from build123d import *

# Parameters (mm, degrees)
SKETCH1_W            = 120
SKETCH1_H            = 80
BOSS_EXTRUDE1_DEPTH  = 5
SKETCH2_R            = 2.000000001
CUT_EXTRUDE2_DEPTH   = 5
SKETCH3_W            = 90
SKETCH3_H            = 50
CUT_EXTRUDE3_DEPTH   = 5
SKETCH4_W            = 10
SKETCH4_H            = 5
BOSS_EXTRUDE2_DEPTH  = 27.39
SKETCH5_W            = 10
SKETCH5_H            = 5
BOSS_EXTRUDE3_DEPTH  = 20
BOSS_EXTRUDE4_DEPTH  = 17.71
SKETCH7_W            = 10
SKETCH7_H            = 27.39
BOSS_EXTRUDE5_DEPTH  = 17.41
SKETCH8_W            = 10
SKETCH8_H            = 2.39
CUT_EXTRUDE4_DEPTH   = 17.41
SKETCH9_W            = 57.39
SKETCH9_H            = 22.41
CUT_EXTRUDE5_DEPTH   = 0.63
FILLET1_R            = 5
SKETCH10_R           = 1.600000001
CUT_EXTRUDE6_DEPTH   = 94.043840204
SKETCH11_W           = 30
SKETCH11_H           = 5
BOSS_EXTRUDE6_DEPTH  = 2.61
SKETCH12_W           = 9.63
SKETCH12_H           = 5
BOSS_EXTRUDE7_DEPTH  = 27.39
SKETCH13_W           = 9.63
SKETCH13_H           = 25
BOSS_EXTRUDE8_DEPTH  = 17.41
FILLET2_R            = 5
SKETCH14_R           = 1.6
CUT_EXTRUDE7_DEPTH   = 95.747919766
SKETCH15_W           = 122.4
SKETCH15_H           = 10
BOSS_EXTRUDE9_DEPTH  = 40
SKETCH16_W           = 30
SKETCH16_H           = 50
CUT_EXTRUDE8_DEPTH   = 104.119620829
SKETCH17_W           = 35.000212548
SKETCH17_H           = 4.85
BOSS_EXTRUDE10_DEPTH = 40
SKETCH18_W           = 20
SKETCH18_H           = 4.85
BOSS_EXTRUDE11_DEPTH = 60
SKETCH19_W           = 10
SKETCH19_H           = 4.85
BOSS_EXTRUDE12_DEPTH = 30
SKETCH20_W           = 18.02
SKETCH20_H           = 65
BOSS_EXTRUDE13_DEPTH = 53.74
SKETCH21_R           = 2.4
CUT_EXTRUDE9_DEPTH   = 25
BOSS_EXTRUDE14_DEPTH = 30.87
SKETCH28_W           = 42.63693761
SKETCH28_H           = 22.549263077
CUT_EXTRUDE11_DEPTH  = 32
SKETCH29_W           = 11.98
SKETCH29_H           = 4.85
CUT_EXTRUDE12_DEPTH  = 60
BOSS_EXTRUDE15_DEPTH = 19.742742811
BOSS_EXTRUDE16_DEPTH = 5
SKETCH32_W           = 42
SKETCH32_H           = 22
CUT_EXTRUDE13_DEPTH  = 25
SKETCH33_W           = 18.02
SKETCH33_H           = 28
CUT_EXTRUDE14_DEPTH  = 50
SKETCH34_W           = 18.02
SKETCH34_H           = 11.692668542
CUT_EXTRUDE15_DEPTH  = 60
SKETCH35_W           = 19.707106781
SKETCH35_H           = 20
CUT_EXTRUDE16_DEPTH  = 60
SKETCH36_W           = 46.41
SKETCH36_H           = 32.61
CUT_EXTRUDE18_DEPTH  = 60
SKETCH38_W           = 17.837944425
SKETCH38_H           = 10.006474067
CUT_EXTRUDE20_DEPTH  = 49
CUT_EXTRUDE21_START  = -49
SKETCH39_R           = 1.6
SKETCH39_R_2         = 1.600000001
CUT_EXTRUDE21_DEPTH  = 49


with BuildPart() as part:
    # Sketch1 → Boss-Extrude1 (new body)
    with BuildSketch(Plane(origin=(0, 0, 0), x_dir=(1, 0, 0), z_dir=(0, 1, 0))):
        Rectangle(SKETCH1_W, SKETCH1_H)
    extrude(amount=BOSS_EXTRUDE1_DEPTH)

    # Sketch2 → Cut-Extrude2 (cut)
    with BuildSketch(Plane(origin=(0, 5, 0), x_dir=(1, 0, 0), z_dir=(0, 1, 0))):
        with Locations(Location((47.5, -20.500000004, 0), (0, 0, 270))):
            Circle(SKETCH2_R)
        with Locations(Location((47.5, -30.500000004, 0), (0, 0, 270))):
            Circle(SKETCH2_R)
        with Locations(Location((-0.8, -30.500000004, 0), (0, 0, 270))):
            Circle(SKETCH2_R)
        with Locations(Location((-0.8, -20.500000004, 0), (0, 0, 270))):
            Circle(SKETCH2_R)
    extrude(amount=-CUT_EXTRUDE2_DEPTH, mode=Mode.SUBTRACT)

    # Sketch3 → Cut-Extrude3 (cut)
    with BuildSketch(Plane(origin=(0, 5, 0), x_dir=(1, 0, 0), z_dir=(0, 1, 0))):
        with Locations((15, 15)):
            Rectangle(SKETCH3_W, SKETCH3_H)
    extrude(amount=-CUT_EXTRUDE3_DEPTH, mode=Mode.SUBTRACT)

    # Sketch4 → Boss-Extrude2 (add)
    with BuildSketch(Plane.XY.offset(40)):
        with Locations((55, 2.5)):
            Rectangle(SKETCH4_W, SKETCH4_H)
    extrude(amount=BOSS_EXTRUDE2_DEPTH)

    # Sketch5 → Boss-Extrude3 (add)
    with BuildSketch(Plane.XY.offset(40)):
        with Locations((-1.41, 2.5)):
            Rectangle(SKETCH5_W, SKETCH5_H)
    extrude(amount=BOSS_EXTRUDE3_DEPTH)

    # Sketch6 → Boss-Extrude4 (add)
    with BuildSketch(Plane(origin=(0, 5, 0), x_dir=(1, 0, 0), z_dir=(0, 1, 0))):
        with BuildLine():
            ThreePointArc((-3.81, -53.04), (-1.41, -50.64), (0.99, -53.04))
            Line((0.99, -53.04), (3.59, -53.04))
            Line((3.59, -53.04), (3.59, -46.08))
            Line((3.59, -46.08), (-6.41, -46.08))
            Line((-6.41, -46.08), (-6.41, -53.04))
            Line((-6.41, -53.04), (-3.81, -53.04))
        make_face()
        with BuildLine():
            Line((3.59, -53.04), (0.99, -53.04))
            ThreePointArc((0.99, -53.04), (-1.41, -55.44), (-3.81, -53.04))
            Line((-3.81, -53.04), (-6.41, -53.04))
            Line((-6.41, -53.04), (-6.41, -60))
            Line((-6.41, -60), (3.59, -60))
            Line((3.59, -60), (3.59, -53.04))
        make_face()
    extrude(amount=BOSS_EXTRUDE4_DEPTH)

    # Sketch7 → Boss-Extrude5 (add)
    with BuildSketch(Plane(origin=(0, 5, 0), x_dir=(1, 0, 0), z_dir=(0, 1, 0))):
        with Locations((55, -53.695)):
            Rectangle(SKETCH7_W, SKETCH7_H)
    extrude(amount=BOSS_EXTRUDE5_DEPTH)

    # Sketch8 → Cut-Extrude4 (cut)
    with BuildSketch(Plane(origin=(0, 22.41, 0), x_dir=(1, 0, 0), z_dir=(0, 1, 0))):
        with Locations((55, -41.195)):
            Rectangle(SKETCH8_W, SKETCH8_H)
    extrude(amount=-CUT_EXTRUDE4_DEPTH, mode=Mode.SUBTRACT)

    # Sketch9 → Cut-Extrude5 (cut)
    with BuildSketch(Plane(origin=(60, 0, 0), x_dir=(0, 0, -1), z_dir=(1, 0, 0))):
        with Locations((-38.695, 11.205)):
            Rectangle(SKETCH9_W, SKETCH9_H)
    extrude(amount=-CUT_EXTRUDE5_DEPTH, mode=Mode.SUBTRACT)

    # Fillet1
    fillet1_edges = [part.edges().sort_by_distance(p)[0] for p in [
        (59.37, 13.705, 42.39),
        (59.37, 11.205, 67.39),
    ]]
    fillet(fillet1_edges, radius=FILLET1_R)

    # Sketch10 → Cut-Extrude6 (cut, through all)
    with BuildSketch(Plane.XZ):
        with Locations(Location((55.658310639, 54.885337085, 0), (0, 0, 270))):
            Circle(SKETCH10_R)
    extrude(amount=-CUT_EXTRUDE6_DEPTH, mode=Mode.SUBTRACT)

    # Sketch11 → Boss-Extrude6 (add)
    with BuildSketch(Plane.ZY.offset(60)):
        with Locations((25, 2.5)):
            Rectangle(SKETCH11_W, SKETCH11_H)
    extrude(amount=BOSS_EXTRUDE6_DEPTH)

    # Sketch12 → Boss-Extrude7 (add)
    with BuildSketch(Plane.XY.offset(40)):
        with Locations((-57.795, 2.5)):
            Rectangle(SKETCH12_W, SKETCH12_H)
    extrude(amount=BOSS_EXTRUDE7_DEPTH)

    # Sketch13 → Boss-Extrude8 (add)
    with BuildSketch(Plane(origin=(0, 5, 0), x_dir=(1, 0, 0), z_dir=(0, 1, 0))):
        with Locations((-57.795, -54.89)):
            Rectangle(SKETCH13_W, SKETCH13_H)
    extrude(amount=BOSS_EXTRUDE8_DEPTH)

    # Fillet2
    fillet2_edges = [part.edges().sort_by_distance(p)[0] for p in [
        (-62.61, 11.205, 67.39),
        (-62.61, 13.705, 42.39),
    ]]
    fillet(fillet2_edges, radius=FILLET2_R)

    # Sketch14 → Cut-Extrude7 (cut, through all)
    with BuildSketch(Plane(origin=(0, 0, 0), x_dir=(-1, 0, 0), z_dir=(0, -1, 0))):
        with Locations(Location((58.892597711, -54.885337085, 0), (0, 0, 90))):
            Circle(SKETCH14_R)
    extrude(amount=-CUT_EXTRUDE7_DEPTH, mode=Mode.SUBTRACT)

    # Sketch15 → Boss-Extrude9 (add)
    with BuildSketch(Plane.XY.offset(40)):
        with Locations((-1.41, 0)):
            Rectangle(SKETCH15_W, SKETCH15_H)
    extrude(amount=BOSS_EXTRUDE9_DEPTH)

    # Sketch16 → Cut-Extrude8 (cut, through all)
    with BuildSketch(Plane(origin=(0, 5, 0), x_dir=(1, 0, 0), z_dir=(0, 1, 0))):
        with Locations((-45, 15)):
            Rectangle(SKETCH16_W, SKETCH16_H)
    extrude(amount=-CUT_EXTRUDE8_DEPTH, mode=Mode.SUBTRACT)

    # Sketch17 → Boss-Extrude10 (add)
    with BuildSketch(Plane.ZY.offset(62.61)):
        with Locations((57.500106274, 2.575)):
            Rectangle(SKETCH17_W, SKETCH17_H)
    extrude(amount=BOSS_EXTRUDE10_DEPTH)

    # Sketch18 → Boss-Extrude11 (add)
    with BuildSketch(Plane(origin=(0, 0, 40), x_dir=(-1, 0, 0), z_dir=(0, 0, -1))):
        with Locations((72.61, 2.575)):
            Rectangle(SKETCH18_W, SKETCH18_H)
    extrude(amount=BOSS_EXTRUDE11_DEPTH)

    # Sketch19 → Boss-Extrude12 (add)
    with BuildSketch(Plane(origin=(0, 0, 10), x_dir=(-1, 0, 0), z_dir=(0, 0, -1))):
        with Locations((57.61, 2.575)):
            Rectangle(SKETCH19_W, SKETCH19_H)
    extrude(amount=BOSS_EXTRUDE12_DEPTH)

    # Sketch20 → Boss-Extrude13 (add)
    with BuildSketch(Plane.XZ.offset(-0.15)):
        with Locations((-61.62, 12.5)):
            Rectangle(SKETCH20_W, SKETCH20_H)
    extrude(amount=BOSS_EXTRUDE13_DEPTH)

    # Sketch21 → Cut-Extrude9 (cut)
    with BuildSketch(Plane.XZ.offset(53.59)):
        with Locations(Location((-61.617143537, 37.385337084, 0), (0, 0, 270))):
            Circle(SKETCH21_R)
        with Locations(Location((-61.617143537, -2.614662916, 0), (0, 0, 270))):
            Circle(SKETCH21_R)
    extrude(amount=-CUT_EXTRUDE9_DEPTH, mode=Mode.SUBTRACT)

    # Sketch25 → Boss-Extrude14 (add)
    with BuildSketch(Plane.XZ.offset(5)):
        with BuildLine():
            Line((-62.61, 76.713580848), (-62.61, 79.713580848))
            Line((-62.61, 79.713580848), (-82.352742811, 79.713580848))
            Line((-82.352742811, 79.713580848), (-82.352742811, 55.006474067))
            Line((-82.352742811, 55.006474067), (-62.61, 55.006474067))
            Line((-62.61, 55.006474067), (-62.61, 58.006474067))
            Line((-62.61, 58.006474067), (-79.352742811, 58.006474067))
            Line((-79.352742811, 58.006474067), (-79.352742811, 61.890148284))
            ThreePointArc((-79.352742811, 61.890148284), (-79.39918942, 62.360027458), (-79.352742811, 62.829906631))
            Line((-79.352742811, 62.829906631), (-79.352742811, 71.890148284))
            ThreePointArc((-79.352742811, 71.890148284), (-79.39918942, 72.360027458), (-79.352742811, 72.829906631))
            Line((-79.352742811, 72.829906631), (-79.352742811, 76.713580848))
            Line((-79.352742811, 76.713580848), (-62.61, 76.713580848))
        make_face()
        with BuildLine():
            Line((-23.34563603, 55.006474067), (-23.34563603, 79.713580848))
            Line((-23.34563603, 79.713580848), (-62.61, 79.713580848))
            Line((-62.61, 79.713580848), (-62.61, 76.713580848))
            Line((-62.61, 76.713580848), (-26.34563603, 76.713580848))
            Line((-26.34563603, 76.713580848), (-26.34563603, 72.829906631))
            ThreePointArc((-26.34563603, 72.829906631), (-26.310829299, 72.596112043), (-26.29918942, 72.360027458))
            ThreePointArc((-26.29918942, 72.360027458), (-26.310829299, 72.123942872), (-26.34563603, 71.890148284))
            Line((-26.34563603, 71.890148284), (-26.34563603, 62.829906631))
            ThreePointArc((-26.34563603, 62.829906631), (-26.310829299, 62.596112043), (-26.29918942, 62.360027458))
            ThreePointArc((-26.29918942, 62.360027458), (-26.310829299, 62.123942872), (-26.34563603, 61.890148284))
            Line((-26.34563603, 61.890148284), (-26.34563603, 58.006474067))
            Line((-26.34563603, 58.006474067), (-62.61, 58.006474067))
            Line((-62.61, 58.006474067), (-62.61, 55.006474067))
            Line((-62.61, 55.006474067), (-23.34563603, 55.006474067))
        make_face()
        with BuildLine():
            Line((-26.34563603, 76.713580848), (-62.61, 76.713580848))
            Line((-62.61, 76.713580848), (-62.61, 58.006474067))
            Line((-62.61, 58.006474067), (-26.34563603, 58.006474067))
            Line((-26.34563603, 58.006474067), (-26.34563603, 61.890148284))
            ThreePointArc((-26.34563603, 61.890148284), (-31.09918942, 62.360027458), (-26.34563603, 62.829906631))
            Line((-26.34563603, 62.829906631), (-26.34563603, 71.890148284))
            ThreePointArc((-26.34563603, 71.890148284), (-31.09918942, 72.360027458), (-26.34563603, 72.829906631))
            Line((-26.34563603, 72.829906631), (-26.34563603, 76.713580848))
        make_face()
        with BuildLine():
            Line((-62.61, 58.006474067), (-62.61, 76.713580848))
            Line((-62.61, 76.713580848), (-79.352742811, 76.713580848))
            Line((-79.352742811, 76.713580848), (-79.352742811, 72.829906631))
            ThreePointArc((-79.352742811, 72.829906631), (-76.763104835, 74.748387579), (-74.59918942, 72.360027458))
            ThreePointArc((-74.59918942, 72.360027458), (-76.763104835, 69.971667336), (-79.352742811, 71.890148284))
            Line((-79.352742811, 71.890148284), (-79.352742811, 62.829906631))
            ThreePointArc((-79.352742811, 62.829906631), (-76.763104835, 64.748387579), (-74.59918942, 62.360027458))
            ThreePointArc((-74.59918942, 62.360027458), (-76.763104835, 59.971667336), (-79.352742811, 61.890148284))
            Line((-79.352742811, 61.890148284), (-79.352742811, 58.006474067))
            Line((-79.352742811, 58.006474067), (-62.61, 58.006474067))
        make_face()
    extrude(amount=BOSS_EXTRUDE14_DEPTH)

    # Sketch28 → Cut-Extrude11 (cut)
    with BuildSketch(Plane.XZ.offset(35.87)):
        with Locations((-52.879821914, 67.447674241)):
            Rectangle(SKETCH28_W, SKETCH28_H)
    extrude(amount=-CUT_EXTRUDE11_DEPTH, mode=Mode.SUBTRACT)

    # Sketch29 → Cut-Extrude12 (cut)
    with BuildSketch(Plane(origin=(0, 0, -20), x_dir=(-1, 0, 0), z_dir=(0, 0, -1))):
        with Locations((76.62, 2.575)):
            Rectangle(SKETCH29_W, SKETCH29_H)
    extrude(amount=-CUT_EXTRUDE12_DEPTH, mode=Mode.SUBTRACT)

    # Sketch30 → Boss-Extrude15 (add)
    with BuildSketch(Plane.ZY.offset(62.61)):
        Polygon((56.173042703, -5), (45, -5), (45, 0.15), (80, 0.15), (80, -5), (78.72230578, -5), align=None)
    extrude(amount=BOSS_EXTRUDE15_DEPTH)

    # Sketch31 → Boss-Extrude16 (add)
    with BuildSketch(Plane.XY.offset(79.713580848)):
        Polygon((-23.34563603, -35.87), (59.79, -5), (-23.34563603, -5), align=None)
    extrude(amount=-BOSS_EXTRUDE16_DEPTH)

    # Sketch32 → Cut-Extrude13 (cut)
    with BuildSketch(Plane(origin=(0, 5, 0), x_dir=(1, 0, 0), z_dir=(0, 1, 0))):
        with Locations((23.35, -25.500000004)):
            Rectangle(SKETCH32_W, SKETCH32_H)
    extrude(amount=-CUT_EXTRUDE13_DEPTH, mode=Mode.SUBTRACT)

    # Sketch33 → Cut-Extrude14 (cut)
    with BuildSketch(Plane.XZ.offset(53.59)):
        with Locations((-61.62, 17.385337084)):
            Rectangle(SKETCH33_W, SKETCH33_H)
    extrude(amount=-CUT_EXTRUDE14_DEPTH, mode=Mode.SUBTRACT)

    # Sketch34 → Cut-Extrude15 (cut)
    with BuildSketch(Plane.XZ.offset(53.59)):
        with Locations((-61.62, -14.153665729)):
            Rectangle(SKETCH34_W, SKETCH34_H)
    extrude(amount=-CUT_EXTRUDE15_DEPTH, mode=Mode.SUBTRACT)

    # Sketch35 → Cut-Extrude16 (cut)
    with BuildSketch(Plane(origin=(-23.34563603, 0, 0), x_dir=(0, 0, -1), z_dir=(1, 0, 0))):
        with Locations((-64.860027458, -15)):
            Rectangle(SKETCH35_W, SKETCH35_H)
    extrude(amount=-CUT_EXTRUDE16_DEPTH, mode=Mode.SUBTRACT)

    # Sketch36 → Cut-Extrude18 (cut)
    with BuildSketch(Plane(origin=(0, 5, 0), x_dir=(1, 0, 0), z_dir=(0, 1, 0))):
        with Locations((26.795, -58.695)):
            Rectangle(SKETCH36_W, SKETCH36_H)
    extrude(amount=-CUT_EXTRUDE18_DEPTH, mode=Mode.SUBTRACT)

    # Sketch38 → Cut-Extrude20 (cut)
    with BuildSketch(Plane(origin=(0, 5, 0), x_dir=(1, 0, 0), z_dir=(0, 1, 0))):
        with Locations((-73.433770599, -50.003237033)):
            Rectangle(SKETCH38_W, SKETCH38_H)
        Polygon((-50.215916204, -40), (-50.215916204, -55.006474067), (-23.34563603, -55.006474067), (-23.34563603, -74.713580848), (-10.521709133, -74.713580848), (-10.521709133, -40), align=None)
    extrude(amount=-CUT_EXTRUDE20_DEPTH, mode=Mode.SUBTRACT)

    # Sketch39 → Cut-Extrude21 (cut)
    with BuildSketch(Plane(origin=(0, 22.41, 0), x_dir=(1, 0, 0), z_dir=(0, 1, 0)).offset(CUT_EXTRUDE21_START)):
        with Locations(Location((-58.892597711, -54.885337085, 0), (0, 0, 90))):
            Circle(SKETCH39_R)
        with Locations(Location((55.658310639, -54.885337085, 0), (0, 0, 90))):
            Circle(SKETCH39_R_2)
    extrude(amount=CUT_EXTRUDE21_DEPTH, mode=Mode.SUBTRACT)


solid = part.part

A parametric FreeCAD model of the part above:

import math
import FreeCAD as App
import Part
import Sketcher

V = App.Vector


def edges_at(feature, points):
    """Names of the edges that pass closest to the given points."""
    edges = feature.Shape.Edges
    near = lambda p: min(range(len(edges)), key=lambda i: edges[i].distToShape(Part.Vertex(*p))[0])
    return sorted({f"Edge{near(p) + 1}" for p in points})


def add_polygon(sketch, points):
    """Adds a closed chain of lines whose ends are joined by coincident constraints."""
    first, n = sketch.GeometryCount, len(points)
    for a, b in zip(points, points[1:] + points[:1]):
        sketch.addGeometry(Part.LineSegment(App.Vector(*a, 0), App.Vector(*b, 0)), False)
    for i in range(n):
        sketch.addConstraint(Sketcher.Constraint("Coincident", first + i, 2, first + (i + 1) % n, 1))

doc = App.newDocument("Part")
body = doc.addObject("PartDesign::Body", "Body")

sketch1 = doc.addObject("Sketcher::SketchObject", "Sketch")
body.addObject(sketch1)
sketch1.AttachmentSupport = (doc.XZ_Plane, [""])
sketch1.MapMode = "FlatFace"
add_polygon(sketch1, [(-60, -40), (-60, 40), (60, 40), (60, -40)])
sketch1.addConstraint([
    Sketcher.Constraint("Vertical", 0),
    Sketcher.Constraint("Horizontal", 1),
    Sketcher.Constraint("Vertical", 2),
    Sketcher.Constraint("Horizontal", 3),
    Sketcher.Constraint("Symmetric", 0, 2, 2, 2, -1, 1),
    Sketcher.Constraint("DistanceX", 1, 1, 1, 2, 120.0),
    Sketcher.Constraint("DistanceY", 0, 1, 0, 2, 80.0),
])
pad1 = doc.addObject("PartDesign::Pad", "Pad")
body.addObject(pad1)
pad1.Profile = sketch1
pad1.Length = 5
pad1.Reversed = True

sketch2 = doc.addObject("Sketcher::SketchObject", "Sketch001")
body.addObject(sketch2)
sketch2.AttachmentSupport = (doc.XZ_Plane, [""])
sketch2.MapMode = "FlatFace"
sketch2.AttachmentOffset = App.Placement(V(0, 0, -5), App.Rotation())
sketch2.addGeometry([
    Part.Circle(V(47.5, 20.5, 0), V(0, 0, 1), 2),
    Part.Circle(V(47.5, 30.5, 0), V(0, 0, 1), 2),
    Part.Circle(V(-0.8, 30.5, 0), V(0, 0, 1), 2),
    Part.Circle(V(-0.8, 20.5, 0), V(0, 0, 1), 2),
], False)
sketch2.addConstraint([
    Sketcher.Constraint("Equal", 0, 1),
    Sketcher.Constraint("Equal", 1, 2),
    Sketcher.Constraint("Equal", 2, 3),
    Sketcher.Constraint("Horizontal", 1, 3, 2, 3),
    Sketcher.Constraint("Horizontal", 0, 3, 3, 3),
    Sketcher.Constraint("Vertical", 0, 3, 1, 3),
    Sketcher.Constraint("Vertical", 2, 3, 3, 3),
    Sketcher.Constraint("Diameter", 0, 4.0),
    Sketcher.Constraint("DistanceY", 0, 3, 1, 3, 10.0),
    Sketcher.Constraint("DistanceX", -1, 1, 0, 3, 47.5),
    Sketcher.Constraint("DistanceY", -1, 1, 0, 3, 20.5),
    Sketcher.Constraint("DistanceX", 2, 3, -1, 1, 0.8),
])
pocket1 = doc.addObject("PartDesign::Pocket", "Pocket")
body.addObject(pocket1)
pocket1.Profile = sketch2
pocket1.Length = 5
pocket1.Reversed = True

sketch3 = doc.addObject("Sketcher::SketchObject", "Sketch002")
body.addObject(sketch3)
sketch3.AttachmentSupport = (doc.XZ_Plane, [""])
sketch3.MapMode = "FlatFace"
sketch3.AttachmentOffset = App.Placement(V(0, 0, -5), App.Rotation())
add_polygon(sketch3, [(-30, -40), (-30, 10), (60, 10), (60, -40)])
sketch3.addConstraint([
    Sketcher.Constraint("Vertical", 0),
    Sketcher.Constraint("Horizontal", 1),
    Sketcher.Constraint("Vertical", 2),
    Sketcher.Constraint("Horizontal", 3),
    Sketcher.Constraint("DistanceX", 1, 1, 1, 2, 90.0),
    Sketcher.Constraint("DistanceY", 0, 1, 0, 2, 50.0),
    Sketcher.Constraint("DistanceX", 0, 2, -1, 1, 30.0),
    Sketcher.Constraint("DistanceY", -1, 1, 0, 2, 10.0),
])
pocket2 = doc.addObject("PartDesign::Pocket", "Pocket001")
body.addObject(pocket2)
pocket2.Profile = sketch3
pocket2.Length = 5
pocket2.Reversed = True

sketch4 = doc.addObject("Sketcher::SketchObject", "Sketch003")
body.addObject(sketch4)
sketch4.AttachmentSupport = (doc.XY_Plane, [""])
sketch4.MapMode = "FlatFace"
sketch4.AttachmentOffset = App.Placement(V(0, 0, 40), App.Rotation())
add_polygon(sketch4, [(50, 5), (50, 0), (60, 0), (60, 5)])
sketch4.addConstraint([
    Sketcher.Constraint("Vertical", 0),
    Sketcher.Constraint("Horizontal", 1),
    Sketcher.Constraint("Vertical", 2),
    Sketcher.Constraint("Horizontal", 3),
    Sketcher.Constraint("PointOnObject", 0, 2, -1),
    Sketcher.Constraint("DistanceX", 1, 1, 1, 2, 10.0),
    Sketcher.Constraint("DistanceY", 0, 2, 0, 1, 5.0),
    Sketcher.Constraint("DistanceX", -1, 1, 0, 2, 50.0),
])
pad2 = doc.addObject("PartDesign::Pad", "Pad001")
body.addObject(pad2)
pad2.Profile = sketch4
pad2.Length = 27.39

sketch5 = doc.addObject("Sketcher::SketchObject", "Sketch004")
body.addObject(sketch5)
sketch5.AttachmentSupport = (doc.XY_Plane, [""])
sketch5.MapMode = "FlatFace"
sketch5.AttachmentOffset = App.Placement(V(0, 0, 40), App.Rotation())
add_polygon(sketch5, [(-6.41, 5), (-6.41, 0), (3.59, 0), (3.59, 5)])
sketch5.addConstraint([
    Sketcher.Constraint("Vertical", 0),
    Sketcher.Constraint("Horizontal", 1),
    Sketcher.Constraint("Vertical", 2),
    Sketcher.Constraint("Horizontal", 3),
    Sketcher.Constraint("PointOnObject", 0, 2, -1),
    Sketcher.Constraint("DistanceX", 1, 1, 1, 2, 10.0),
    Sketcher.Constraint("DistanceY", 0, 2, 0, 1, 5.0),
    Sketcher.Constraint("DistanceX", 0, 2, -1, 1, 6.41),
])
pad3 = doc.addObject("PartDesign::Pad", "Pad002")
body.addObject(pad3)
pad3.Profile = sketch5
pad3.Length = 20

sketch6 = doc.addObject("Sketcher::SketchObject", "Sketch005")
body.addObject(sketch6)
sketch6.AttachmentSupport = (doc.XZ_Plane, [""])
sketch6.MapMode = "FlatFace"
sketch6.AttachmentOffset = App.Placement(V(0, 0, -5), App.Rotation())
add_polygon(sketch6, [(3.59, 46.08), (-6.41, 46.08), (-6.41, 60), (3.59, 60)])
sketch6.addGeometry(Part.Circle(V(-1.41, 53.04, 0), V(0, 0, 1), 2.4), False)
sketch6.addConstraint([
    Sketcher.Constraint("Horizontal", 0),
    Sketcher.Constraint("Vertical", 1),
    Sketcher.Constraint("Horizontal", 2),
    Sketcher.Constraint("Vertical", 3),
    Sketcher.Constraint("Diameter", 4, 4.8),
    Sketcher.Constraint("DistanceX", 0, 2, 0, 1, 10.0),
    Sketcher.Constraint("DistanceY", -1, 1, 1, 2, 60.0),
    Sketcher.Constraint("DistanceX", 0, 2, 4, 3, 5.0),
    Sketcher.Constraint("DistanceY", 1, 1, 1, 2, 13.92),
    Sketcher.Constraint("DistanceX", 4, 3, -1, 1, 1.41),
    Sketcher.Constraint("DistanceY", -1, 1, 4, 3, 53.04),
])
pad4 = doc.addObject("PartDesign::Pad", "Pad003")
body.addObject(pad4)
pad4.Profile = sketch6
pad4.Length = 17.71
pad4.Reversed = True

sketch7 = doc.addObject("Sketcher::SketchObject", "Sketch006")
body.addObject(sketch7)
sketch7.AttachmentSupport = (doc.XZ_Plane, [""])
sketch7.MapMode = "FlatFace"
sketch7.AttachmentOffset = App.Placement(V(0, 0, -5), App.Rotation())
add_polygon(sketch7, [(50, 40), (50, 67.39), (60, 67.39), (60, 40)])
sketch7.addConstraint([
    Sketcher.Constraint("Vertical", 0),
    Sketcher.Constraint("Horizontal", 1),
    Sketcher.Constraint("Vertical", 2),
    Sketcher.Constraint("Horizontal", 3),
    Sketcher.Constraint("DistanceX", 1, 1, 1, 2, 10.0),
    Sketcher.Constraint("DistanceX", -1, 1, 0, 2, 50.0),
    Sketcher.Constraint("DistanceY", -1, 1, 2, 2, 40.0),
    Sketcher.Constraint("DistanceY", 0, 1, 0, 2, 27.39),
])
pad5 = doc.addObject("PartDesign::Pad", "Pad004")
body.addObject(pad5)
pad5.Profile = sketch7
pad5.Length = 17.41
pad5.Reversed = True

sketch8 = doc.addObject("Sketcher::SketchObject", "Sketch007")
body.addObject(sketch8)
sketch8.AttachmentSupport = (doc.XZ_Plane, [""])
sketch8.MapMode = "FlatFace"
sketch8.AttachmentOffset = App.Placement(V(0, 0, -22.41), App.Rotation())
add_polygon(sketch8, [(50, 40), (50, 42.39), (60, 42.39), (60, 40)])
sketch8.addConstraint([
    Sketcher.Constraint("Vertical", 0),
    Sketcher.Constraint("Horizontal", 1),
    Sketcher.Constraint("Vertical", 2),
    Sketcher.Constraint("Horizontal", 3),
    Sketcher.Constraint("DistanceX", 1, 1, 1, 2, 10.0),
    Sketcher.Constraint("DistanceX", -1, 1, 0, 2, 50.0),
    Sketcher.Constraint("DistanceY", -1, 1, 2, 2, 40.0),
    Sketcher.Constraint("DistanceY", 0, 1, 0, 2, 2.39),
])
pocket3 = doc.addObject("PartDesign::Pocket", "Pocket002")
body.addObject(pocket3)
pocket3.Profile = sketch8
pocket3.Length = 17.41
pocket3.Reversed = True

sketch9 = doc.addObject("Sketcher::SketchObject", "Sketch008")
body.addObject(sketch9)
sketch9.AttachmentSupport = (doc.YZ_Plane, [""])
sketch9.MapMode = "FlatFace"
sketch9.AttachmentOffset = App.Placement(V(0, 0, 60), App.Rotation())
add_polygon(sketch9, [(22.41, 67.39), (0, 67.39), (0, 10), (22.41, 10)])
sketch9.addConstraint([
    Sketcher.Constraint("Horizontal", 0),
    Sketcher.Constraint("Vertical", 1),
    Sketcher.Constraint("Horizontal", 2),
    Sketcher.Constraint("Vertical", 3),
    Sketcher.Constraint("PointOnObject", 0, 2, -2),
    Sketcher.Constraint("DistanceY", -1, 1, 1, 2, 10.0),
    Sketcher.Constraint("DistanceX", 0, 2, 0, 1, 22.41),
    Sketcher.Constraint("DistanceY", 1, 2, 1, 1, 57.39),
])
pocket4 = doc.addObject("PartDesign::Pocket", "Pocket003")
body.addObject(pocket4)
pocket4.Profile = sketch9
pocket4.Length = 0.63
doc.recompute()

fillet = doc.addObject("PartDesign::Fillet", "Fillet")
body.addObject(fillet)
fillet.Base = (pocket4, edges_at(pocket4, [(59.37, 13.705, 42.39), (59.37, 11.205, 67.39)]))
fillet.Radius = 5

sketch10 = doc.addObject("Sketcher::SketchObject", "Sketch009")
body.addObject(sketch10)
sketch10.AttachmentSupport = (doc.XZ_Plane, [""])
sketch10.MapMode = "FlatFace"
sketch10.addGeometry(Part.Circle(V(55.658311, 54.885337, 0), V(0, 0, 1), 1.6), False)
sketch10.addConstraint([
    Sketcher.Constraint("Diameter", 0, 3.2),
    Sketcher.Constraint("DistanceX", -1, 1, 0, 3, 55.658311),
    Sketcher.Constraint("DistanceY", -1, 1, 0, 3, 54.885337),
])
pocket5 = doc.addObject("PartDesign::Pocket", "Pocket004")
body.addObject(pocket5)
pocket5.Profile = sketch10
pocket5.Type = "ThroughAll"

sketch11 = doc.addObject("Sketcher::SketchObject", "Sketch010")
body.addObject(sketch11)
sketch11.AttachmentSupport = (doc.YZ_Plane, [""])
sketch11.MapMode = "FlatFace"
sketch11.AttachmentOffset = App.Placement(V(0, 0, -60), App.Rotation())
add_polygon(sketch11, [(5, 10), (0, 10), (0, 40), (5, 40)])
sketch11.addConstraint([
    Sketcher.Constraint("Horizontal", 0),
    Sketcher.Constraint("Vertical", 1),
    Sketcher.Constraint("Horizontal", 2),
    Sketcher.Constraint("Vertical", 3),
    Sketcher.Constraint("PointOnObject", 0, 2, -2),
    Sketcher.Constraint("DistanceX", 0, 2, 0, 1, 5.0),
    Sketcher.Constraint("DistanceY", 1, 1, 1, 2, 30.0),
    Sketcher.Constraint("DistanceY", -1, 1, 0, 2, 10.0),
])
pad6 = doc.addObject("PartDesign::Pad", "Pad005")
body.addObject(pad6)
pad6.Profile = sketch11
pad6.Length = 2.61
pad6.Reversed = True

sketch12 = doc.addObject("Sketcher::SketchObject", "Sketch011")
body.addObject(sketch12)
sketch12.AttachmentSupport = (doc.XY_Plane, [""])
sketch12.MapMode = "FlatFace"
sketch12.AttachmentOffset = App.Placement(V(0, 0, 40), App.Rotation())
add_polygon(sketch12, [(-62.61, 5), (-62.61, 0), (-52.98, 0), (-52.98, 5)])
sketch12.addConstraint([
    Sketcher.Constraint("Vertical", 0),
    Sketcher.Constraint("Horizontal", 1),
    Sketcher.Constraint("Vertical", 2),
    Sketcher.Constraint("Horizontal", 3),
    Sketcher.Constraint("PointOnObject", 0, 2, -1),
    Sketcher.Constraint("DistanceY", 0, 2, 0, 1, 5.0),
    Sketcher.Constraint("DistanceX", 1, 1, 1, 2, 9.63),
    Sketcher.Constraint("DistanceX", 0, 2, -1, 1, 62.61),
])
pad7 = doc.addObject("PartDesign::Pad", "Pad006")
body.addObject(pad7)
pad7.Profile = sketch12
pad7.Length = 27.39

sketch13 = doc.addObject("Sketcher::SketchObject", "Sketch012")
body.addObject(sketch13)
sketch13.AttachmentSupport = (doc.XZ_Plane, [""])
sketch13.MapMode = "FlatFace"
sketch13.AttachmentOffset = App.Placement(V(0, 0, -5), App.Rotation())
add_polygon(sketch13, [(-62.61, 42.39), (-62.61, 67.39), (-52.98, 67.39), (-52.98, 42.39)])
sketch13.addConstraint([
    Sketcher.Constraint("Vertical", 0),
    Sketcher.Constraint("Horizontal", 1),
    Sketcher.Constraint("Vertical", 2),
    Sketcher.Constraint("Horizontal", 3),
    Sketcher.Constraint("DistanceY", 0, 1, 0, 2, 25.0),
    Sketcher.Constraint("DistanceX", 1, 1, 1, 2, 9.63),
    Sketcher.Constraint("DistanceX", 0, 2, -1, 1, 62.61),
    Sketcher.Constraint("DistanceY", -1, 1, 0, 2, 67.39),
])
pad8 = doc.addObject("PartDesign::Pad", "Pad007")
body.addObject(pad8)
pad8.Profile = sketch13
pad8.Length = 17.41
pad8.Reversed = True
doc.recompute()

fillet2 = doc.addObject("PartDesign::Fillet", "Fillet001")
body.addObject(fillet2)
fillet2.Base = (pad8, edges_at(pad8, [(-62.61, 11.205, 67.39), (-62.61, 13.705, 42.39)]))
fillet2.Radius = 5

sketch14 = doc.addObject("Sketcher::SketchObject", "Sketch013")
body.addObject(sketch14)
sketch14.AttachmentSupport = (doc.XZ_Plane, [""])
sketch14.MapMode = "FlatFace"
sketch14.addGeometry(Part.Circle(V(-58.892598, 54.885337, 0), V(0, 0, 1), 1.6), False)
sketch14.addConstraint([
    Sketcher.Constraint("Diameter", 0, 3.2),
    Sketcher.Constraint("DistanceX", 0, 3, -1, 1, 58.892598),
    Sketcher.Constraint("DistanceY", -1, 1, 0, 3, 54.885337),
])
pocket6 = doc.addObject("PartDesign::Pocket", "Pocket005")
body.addObject(pocket6)
pocket6.Profile = sketch14
pocket6.Type = "ThroughAll"

sketch15 = doc.addObject("Sketcher::SketchObject", "Sketch014")
body.addObject(sketch15)
sketch15.AttachmentSupport = (doc.XY_Plane, [""])
sketch15.MapMode = "FlatFace"
sketch15.AttachmentOffset = App.Placement(V(0, 0, 40), App.Rotation())
add_polygon(sketch15, [(-62.61, 5), (-62.61, -5), (59.79, -5), (59.79, 5)])
sketch15.addConstraint([
    Sketcher.Constraint("Vertical", 0),
    Sketcher.Constraint("Horizontal", 1),
    Sketcher.Constraint("Vertical", 2),
    Sketcher.Constraint("Horizontal", 3),
    Sketcher.Constraint("DistanceY", 0, 2, 0, 1, 10.0),
    Sketcher.Constraint("DistanceX", 1, 1, 1, 2, 122.4),
    Sketcher.Constraint("DistanceY", 0, 2, -1, 1, 5.0),
    Sketcher.Constraint("DistanceX", 0, 2, -1, 1, 62.61),
])
pad9 = doc.addObject("PartDesign::Pad", "Pad008")
body.addObject(pad9)
pad9.Profile = sketch15
pad9.Length = 40

sketch16 = doc.addObject("Sketcher::SketchObject", "Sketch015")
body.addObject(sketch16)
sketch16.AttachmentSupport = (doc.XZ_Plane, [""])
sketch16.MapMode = "FlatFace"
sketch16.AttachmentOffset = App.Placement(V(0, 0, -5), App.Rotation())
add_polygon(sketch16, [(-60, -40), (-60, 10), (-30, 10), (-30, -40)])
sketch16.addConstraint([
    Sketcher.Constraint("Vertical", 0),
    Sketcher.Constraint("Horizontal", 1),
    Sketcher.Constraint("Vertical", 2),
    Sketcher.Constraint("Horizontal", 3),
    Sketcher.Constraint("DistanceX", 1, 1, 1, 2, 30.0),
    Sketcher.Constraint("DistanceY", 0, 1, 0, 2, 50.0),
    Sketcher.Constraint("DistanceX", 0, 2, -1, 1, 60.0),
    Sketcher.Constraint("DistanceY", -1, 1, 0, 2, 10.0),
])
pocket7 = doc.addObject("PartDesign::Pocket", "Pocket006")
body.addObject(pocket7)
pocket7.Profile = sketch16
pocket7.Type = "ThroughAll"
pocket7.Reversed = True

sketch17 = doc.addObject("Sketcher::SketchObject", "Sketch016")
body.addObject(sketch17)
sketch17.AttachmentSupport = (doc.YZ_Plane, [""])
sketch17.MapMode = "FlatFace"
sketch17.AttachmentOffset = App.Placement(V(0, 0, -62.61), App.Rotation())
add_polygon(sketch17, [(5, 40), (0.15, 40), (0.15, 75.000213), (5, 75.000213)])
sketch17.addConstraint([
    Sketcher.Constraint("Horizontal", 0),
    Sketcher.Constraint("Vertical", 1),
    Sketcher.Constraint("Horizontal", 2),
    Sketcher.Constraint("Vertical", 3),
    Sketcher.Constraint("DistanceY", -1, 1, 0, 2, 40.0),
    Sketcher.Constraint("DistanceX", -1, 1, 2, 2, 5.0),
    Sketcher.Constraint("DistanceX", 0, 2, 0, 1, 4.85),
    Sketcher.Constraint("DistanceY", 1, 1, 1, 2, 35.000213),
])
pad10 = doc.addObject("PartDesign::Pad", "Pad009")
body.addObject(pad10)
pad10.Profile = sketch17
pad10.Length = 40
pad10.Reversed = True

sketch18 = doc.addObject("Sketcher::SketchObject", "Sketch017")
body.addObject(sketch18)
sketch18.AttachmentSupport = (doc.XY_Plane, [""])
sketch18.MapMode = "FlatFace"
sketch18.AttachmentOffset = App.Placement(V(0, 0, 40), App.Rotation())
add_polygon(sketch18, [(-62.61, 5), (-62.61, 0.15), (-82.61, 0.15), (-82.61, 5)])
sketch18.addConstraint([
    Sketcher.Constraint("Vertical", 0),
    Sketcher.Constraint("Horizontal", 1),
    Sketcher.Constraint("Vertical", 2),
    Sketcher.Constraint("Horizontal", 3),
    Sketcher.Constraint("DistanceX", 1, 2, 1, 1, 20.0),
    Sketcher.Constraint("DistanceY", -1, 1, 2, 2, 5.0),
    Sketcher.Constraint("DistanceY", 0, 2, 0, 1, 4.85),
    Sketcher.Constraint("DistanceX", 0, 2, -1, 1, 62.61),
])
pad11 = doc.addObject("PartDesign::Pad", "Pad010")
body.addObject(pad11)
pad11.Profile = sketch18
pad11.Length = 60
pad11.Reversed = True

sketch19 = doc.addObject("Sketcher::SketchObject", "Sketch018")
body.addObject(sketch19)
sketch19.AttachmentSupport = (doc.XY_Plane, [""])
sketch19.MapMode = "FlatFace"
sketch19.AttachmentOffset = App.Placement(V(0, 0, 10), App.Rotation())
add_polygon(sketch19, [(-52.61, 5), (-52.61, 0.15), (-62.61, 0.15), (-62.61, 5)])
sketch19.addConstraint([
    Sketcher.Constraint("Vertical", 0),
    Sketcher.Constraint("Horizontal", 1),
    Sketcher.Constraint("Vertical", 2),
    Sketcher.Constraint("Horizontal", 3),
    Sketcher.Constraint("DistanceX", 1, 2, 1, 1, 10.0),
    Sketcher.Constraint("DistanceY", -1, 1, 2, 2, 5.0),
    Sketcher.Constraint("DistanceY", 0, 2, 0, 1, 4.85),
    Sketcher.Constraint("DistanceX", 0, 2, -1, 1, 52.61),
])
pad12 = doc.addObject("PartDesign::Pad", "Pad011")
body.addObject(pad12)
pad12.Profile = sketch19
pad12.Length = 30
pad12.Reversed = True

sketch20 = doc.addObject("Sketcher::SketchObject", "Sketch019")
body.addObject(sketch20)
sketch20.AttachmentSupport = (doc.XZ_Plane, [""])
sketch20.MapMode = "FlatFace"
sketch20.AttachmentOffset = App.Placement(V(0, 0, -0.15), App.Rotation())
add_polygon(sketch20, [(-70.63, 45), (-70.63, -20), (-52.61, -20), (-52.61, 45)])
sketch20.addConstraint([
    Sketcher.Constraint("Vertical", 0),
    Sketcher.Constraint("Horizontal", 1),
    Sketcher.Constraint("Vertical", 2),
    Sketcher.Constraint("Horizontal", 3),
    Sketcher.Constraint("DistanceY", 0, 2, 0, 1, 65.0),
    Sketcher.Constraint("DistanceY", 0, 2, -1, 1, 20.0),
    Sketcher.Constraint("DistanceX", 1, 1, 1, 2, 18.02),
    Sketcher.Constraint("DistanceX", 0, 2, -1, 1, 70.63),
])
pad13 = doc.addObject("PartDesign::Pad", "Pad012")
body.addObject(pad13)
pad13.Profile = sketch20
pad13.Length = 53.74

sketch21 = doc.addObject("Sketcher::SketchObject", "Sketch020")
body.addObject(sketch21)
sketch21.AttachmentSupport = (doc.XZ_Plane, [""])
sketch21.MapMode = "FlatFace"
sketch21.AttachmentOffset = App.Placement(V(0, 0, 53.59), App.Rotation())
sketch21.addGeometry([
    Part.Circle(V(-61.617144, 37.385337, 0), V(0, 0, 1), 2.4),
    Part.Circle(V(-61.617144, -2.614663, 0), V(0, 0, 1), 2.4),
], False)
sketch21.addConstraint([
    Sketcher.Constraint("Equal", 0, 1),
    Sketcher.Constraint("Vertical", 0, 3, 1, 3),
    Sketcher.Constraint("Diameter", 0, 4.8),
    Sketcher.Constraint("DistanceY", 1, 3, 0, 3, 40.0),
    Sketcher.Constraint("DistanceX", 0, 3, -1, 1, 61.617144),
    Sketcher.Constraint("DistanceY", -1, 1, 0, 3, 37.385337),
])
pocket8 = doc.addObject("PartDesign::Pocket", "Pocket007")
body.addObject(pocket8)
pocket8.Profile = sketch21
pocket8.Length = 25

sketch22 = doc.addObject("Sketcher::SketchObject", "Sketch021")
body.addObject(sketch22)
sketch22.AttachmentSupport = (doc.XZ_Plane, [""])
sketch22.MapMode = "FlatFace"
sketch22.AttachmentOffset = App.Placement(V(0, 0, 5), App.Rotation())
add_polygon(sketch22, [(-82.352743, 79.713581), (-82.352743, 55.006474), (-23.345636, 55.006474), (-23.345636, 79.713581)])
sketch22.addGeometry(Part.ArcOfCircle(Part.Circle(V(-76.999189, 62.360027, 0), V(0, 0, 1), 2.4), math.radians(168.709533), math.radians(191.290467)), False)
sketch22.addGeometry(Part.ArcOfCircle(Part.Circle(V(-76.999189, 62.360027, 0), V(0, 0, 1), 2.4), math.radians(0), math.radians(168.709533)), False)
sketch22.addGeometry(Part.ArcOfCircle(Part.Circle(V(-76.999189, 62.360027, 0), V(0, 0, 1), 2.4), math.radians(-168.709533), math.radians(0)), False)
sketch22.addGeometry(Part.ArcOfCircle(Part.Circle(V(-76.999189, 72.360027, 0), V(0, 0, 1), 2.4), math.radians(168.709533), math.radians(191.290467)), False)
sketch22.addGeometry(Part.ArcOfCircle(Part.Circle(V(-76.999189, 72.360027, 0), V(0, 0, 1), 2.4), math.radians(0), math.radians(168.709533)), False)
sketch22.addGeometry(Part.ArcOfCircle(Part.Circle(V(-76.999189, 72.360027, 0), V(0, 0, 1), 2.4), math.radians(-168.709533), math.radians(0)), False)
sketch22.addGeometry(Part.ArcOfCircle(Part.Circle(V(-28.699189, 72.360027, 0), V(0, 0, 1), 2.4), math.radians(0), math.radians(11.290467)), False)
sketch22.addGeometry(Part.ArcOfCircle(Part.Circle(V(-28.699189, 72.360027, 0), V(0, 0, 1), 2.4), math.radians(-11.290467), math.radians(0)), False)
sketch22.addGeometry(Part.ArcOfCircle(Part.Circle(V(-28.699189, 72.360027, 0), V(0, 0, 1), 2.4), math.radians(11.290467), math.radians(348.709533)), False)
sketch22.addGeometry(Part.ArcOfCircle(Part.Circle(V(-28.699189, 62.360027, 0), V(0, 0, 1), 2.4), math.radians(0), math.radians(11.290467)), False)
sketch22.addGeometry(Part.ArcOfCircle(Part.Circle(V(-28.699189, 62.360027, 0), V(0, 0, 1), 2.4), math.radians(-11.290467), math.radians(0)), False)
sketch22.addGeometry(Part.ArcOfCircle(Part.Circle(V(-28.699189, 62.360027, 0), V(0, 0, 1), 2.4), math.radians(11.290467), math.radians(348.709533)), False)
sketch22.addConstraint([
    Sketcher.Constraint("Tangent", 4, 1, 5, 2),
    Sketcher.Constraint("Tangent", 5, 1, 6, 2),
    Sketcher.Constraint("Tangent", 6, 1, 4, 2),
    Sketcher.Constraint("Tangent", 7, 1, 8, 2),
    Sketcher.Constraint("Tangent", 8, 1, 9, 2),
    Sketcher.Constraint("Tangent", 9, 1, 7, 2),
    Sketcher.Constraint("Tangent", 10, 1, 11, 2),
    Sketcher.Constraint("Tangent", 11, 1, 12, 2),
    Sketcher.Constraint("Tangent", 12, 1, 10, 2),
    Sketcher.Constraint("Tangent", 13, 1, 14, 2),
    Sketcher.Constraint("Tangent", 14, 1, 15, 2),
    Sketcher.Constraint("Tangent", 15, 1, 13, 2),
    Sketcher.Constraint("Vertical", 0),
    Sketcher.Constraint("Horizontal", 1),
    Sketcher.Constraint("Vertical", 2),
    Sketcher.Constraint("Horizontal", 3),
    Sketcher.Constraint("Equal", 6, 7),
    Sketcher.Constraint("Equal", 9, 10),
    Sketcher.Constraint("Equal", 12, 13),
    Sketcher.Constraint("Horizontal", 9, 3, 10, 3),
    Sketcher.Constraint("Horizontal", 6, 3, 13, 3),
    Sketcher.Constraint("Horizontal", 15, 3, 5, 1),
    Sketcher.Constraint("Horizontal", 12, 3, 8, 1),
    Sketcher.Constraint("Horizontal", 8, 1, 10, 1),
    Sketcher.Constraint("Horizontal", 9, 1, 11, 1),
    Sketcher.Constraint("Horizontal", 7, 1, 12, 1),
    Sketcher.Constraint("Horizontal", 5, 1, 13, 1),
    Sketcher.Constraint("Horizontal", 6, 1, 14, 1),
    Sketcher.Constraint("Horizontal", 4, 1, 15, 1),
    Sketcher.Constraint("Vertical", 6, 3, 7, 3),
    Sketcher.Constraint("Vertical", 12, 3, 13, 3),
    Sketcher.Constraint("Vertical", 4, 1, 6, 1),
    Sketcher.Constraint("Vertical", 6, 1, 7, 1),
    Sketcher.Constraint("Vertical", 7, 1, 9, 1),
    Sketcher.Constraint("Radius", 4, 2.4),
    Sketcher.Constraint("DistanceY", 5, 3, 7, 3, 10.0),
    Sketcher.Constraint("DistanceX", 0, 2, 4, 1, 3.0),
    Sketcher.Constraint("DistanceX", 11, 1, 2, 2, 3.0),
    Sketcher.Constraint("DistanceX", 7, 3, 10, 3, 48.3),
    Sketcher.Constraint("DistanceX", 1, 1, 1, 2, 59.007107),
    Sketcher.Constraint("DistanceY", 0, 2, 0, 1, 24.707107),
    Sketcher.Constraint("DistanceX", 4, 3, -1, 1, 76.999189),
    Sketcher.Constraint("DistanceY", -1, 1, 2, 2, 79.713581),
    Sketcher.Constraint("DistanceY", -1, 1, 6, 1, 61.890148),
])
pad14 = doc.addObject("PartDesign::Pad", "Pad013")
body.addObject(pad14)
pad14.Profile = sketch22
pad14.Length = 30.87

sketch23 = doc.addObject("Sketcher::SketchObject", "Sketch022")
body.addObject(sketch23)
sketch23.AttachmentSupport = (doc.XZ_Plane, [""])
sketch23.MapMode = "FlatFace"
sketch23.AttachmentOffset = App.Placement(V(0, 0, 35.87), App.Rotation())
add_polygon(sketch23, [(-74.198291, 78.722306), (-74.198291, 56.173043), (-31.561353, 56.173043), (-31.561353, 78.722306)])
sketch23.addConstraint([
    Sketcher.Constraint("Vertical", 0),
    Sketcher.Constraint("Horizontal", 1),
    Sketcher.Constraint("Vertical", 2),
    Sketcher.Constraint("Horizontal", 3),
    Sketcher.Constraint("DistanceX", 1, 1, 1, 2, 42.636938),
    Sketcher.Constraint("DistanceY", 0, 2, 0, 1, 22.549263),
    Sketcher.Constraint("DistanceX", 0, 2, -1, 1, 74.198291),
    Sketcher.Constraint("DistanceY", -1, 1, 0, 2, 56.173043),
])
pocket9 = doc.addObject("PartDesign::Pocket", "Pocket008")
body.addObject(pocket9)
pocket9.Profile = sketch23
pocket9.Length = 32

sketch24 = doc.addObject("Sketcher::SketchObject", "Sketch023")
body.addObject(sketch24)
sketch24.AttachmentSupport = (doc.XY_Plane, [""])
sketch24.MapMode = "FlatFace"
sketch24.AttachmentOffset = App.Placement(V(0, 0, -20), App.Rotation())
add_polygon(sketch24, [(-70.63, 5), (-70.63, 0.15), (-82.61, 0.15), (-82.61, 5)])
sketch24.addConstraint([
    Sketcher.Constraint("Vertical", 0),
    Sketcher.Constraint("Horizontal", 1),
    Sketcher.Constraint("Vertical", 2),
    Sketcher.Constraint("Horizontal", 3),
    Sketcher.Constraint("DistanceY", -1, 1, 2, 2, 5.0),
    Sketcher.Constraint("DistanceX", 1, 2, 1, 1, 11.98),
    Sketcher.Constraint("DistanceY", 0, 2, 0, 1, 4.85),
    Sketcher.Constraint("DistanceX", 0, 2, -1, 1, 70.63),
])
pocket10 = doc.addObject("PartDesign::Pocket", "Pocket009")
body.addObject(pocket10)
pocket10.Profile = sketch24
pocket10.Length = 60
pocket10.Reversed = True

sketch25 = doc.addObject("Sketcher::SketchObject", "Sketch024")
body.addObject(sketch25)
sketch25.AttachmentSupport = (doc.YZ_Plane, [""])
sketch25.MapMode = "FlatFace"
sketch25.AttachmentOffset = App.Placement(V(0, 0, -62.61), App.Rotation())
add_polygon(sketch25, [(-5, 45), (-5, 80), (0.15, 80), (0.15, 45)])
sketch25.addConstraint([
    Sketcher.Constraint("Vertical", 0),
    Sketcher.Constraint("Horizontal", 1),
    Sketcher.Constraint("Vertical", 2),
    Sketcher.Constraint("Horizontal", 3),
    Sketcher.Constraint("DistanceY", 0, 1, 0, 2, 35.0),
    Sketcher.Constraint("DistanceX", 0, 2, -1, 1, 5.0),
    Sketcher.Constraint("DistanceY", -1, 1, 0, 2, 80.0),
    Sketcher.Constraint("DistanceX", 1, 1, 1, 2, 5.15),
])
pad15 = doc.addObject("PartDesign::Pad", "Pad014")
body.addObject(pad15)
pad15.Profile = sketch25
pad15.Length = 19.742743
pad15.Reversed = True

sketch26 = doc.addObject("Sketcher::SketchObject", "Sketch025")
body.addObject(sketch26)
sketch26.AttachmentSupport = (doc.XY_Plane, [""])
sketch26.MapMode = "FlatFace"
sketch26.AttachmentOffset = App.Placement(V(0, 0, 79.713581), App.Rotation())
add_polygon(sketch26, [(-23.345636, -35.87), (59.79, -5), (-23.345636, -5)])
sketch26.addConstraint([
    Sketcher.Constraint("Horizontal", 1),
    Sketcher.Constraint("Vertical", 2),
    Sketcher.Constraint("DistanceY", 0, 2, -1, 1, 5.0),
    Sketcher.Constraint("DistanceY", 2, 2, 2, 1, 30.87),
    Sketcher.Constraint("DistanceX", -1, 1, 0, 2, 59.79),
    Sketcher.Constraint("DistanceX", 1, 2, 1, 1, 83.135636),
])
pad16 = doc.addObject("PartDesign::Pad", "Pad015")
body.addObject(pad16)
pad16.Profile = sketch26
pad16.Length = 5
pad16.Reversed = True

sketch27 = doc.addObject("Sketcher::SketchObject", "Sketch026")
body.addObject(sketch27)
sketch27.AttachmentSupport = (doc.XZ_Plane, [""])
sketch27.MapMode = "FlatFace"
sketch27.AttachmentOffset = App.Placement(V(0, 0, -5), App.Rotation())
add_polygon(sketch27, [(2.35, 14.5), (2.35, 36.5), (44.35, 36.5), (44.35, 14.5)])
sketch27.addConstraint([
    Sketcher.Constraint("Vertical", 0),
    Sketcher.Constraint("Horizontal", 1),
    Sketcher.Constraint("Vertical", 2),
    Sketcher.Constraint("Horizontal", 3),
    Sketcher.Constraint("DistanceX", 1, 1, 1, 2, 42.0),
    Sketcher.Constraint("DistanceY", 0, 1, 0, 2, 22.0),
    Sketcher.Constraint("DistanceY", -1, 1, 0, 2, 36.5),
    Sketcher.Constraint("DistanceX", -1, 1, 0, 2, 2.35),
])
pocket11 = doc.addObject("PartDesign::Pocket", "Pocket010")
body.addObject(pocket11)
pocket11.Profile = sketch27
pocket11.Length = 25
pocket11.Reversed = True

sketch28 = doc.addObject("Sketcher::SketchObject", "Sketch027")
body.addObject(sketch28)
sketch28.AttachmentSupport = (doc.XZ_Plane, [""])
sketch28.MapMode = "FlatFace"
sketch28.AttachmentOffset = App.Placement(V(0, 0, 53.59), App.Rotation())
add_polygon(sketch28, [(-70.63, 31.385337), (-70.63, 3.385337), (-52.61, 3.385337), (-52.61, 31.385337)])
sketch28.addConstraint([
    Sketcher.Constraint("Vertical", 0),
    Sketcher.Constraint("Horizontal", 1),
    Sketcher.Constraint("Vertical", 2),
    Sketcher.Constraint("Horizontal", 3),
    Sketcher.Constraint("DistanceY", 0, 2, 0, 1, 28.0),
    Sketcher.Constraint("DistanceX", 1, 1, 1, 2, 18.02),
    Sketcher.Constraint("DistanceX", 0, 2, -1, 1, 70.63),
    Sketcher.Constraint("DistanceY", -1, 1, 0, 2, 3.385337),
])
pocket12 = doc.addObject("PartDesign::Pocket", "Pocket011")
body.addObject(pocket12)
pocket12.Profile = sketch28
pocket12.Length = 50

sketch29 = doc.addObject("Sketcher::SketchObject", "Sketch028")
body.addObject(sketch29)
sketch29.AttachmentSupport = (doc.XZ_Plane, [""])
sketch29.MapMode = "FlatFace"
sketch29.AttachmentOffset = App.Placement(V(0, 0, 53.59), App.Rotation())
add_polygon(sketch29, [(-70.63, -8.307331), (-70.63, -20), (-52.61, -20), (-52.61, -8.307331)])
sketch29.addConstraint([
    Sketcher.Constraint("Vertical", 0),
    Sketcher.Constraint("Horizontal", 1),
    Sketcher.Constraint("Vertical", 2),
    Sketcher.Constraint("Horizontal", 3),
    Sketcher.Constraint("DistanceY", 0, 2, -1, 1, 20.0),
    Sketcher.Constraint("DistanceX", 1, 1, 1, 2, 18.02),
    Sketcher.Constraint("DistanceX", 0, 2, -1, 1, 70.63),
    Sketcher.Constraint("DistanceY", 0, 2, 0, 1, 11.692669),
])
pocket13 = doc.addObject("PartDesign::Pocket", "Pocket012")
body.addObject(pocket13)
pocket13.Profile = sketch29
pocket13.Length = 60

sketch30 = doc.addObject("Sketcher::SketchObject", "Sketch029")
body.addObject(sketch30)
sketch30.AttachmentSupport = (doc.YZ_Plane, [""])
sketch30.MapMode = "FlatFace"
sketch30.AttachmentOffset = App.Placement(V(0, 0, -23.345636), App.Rotation())
add_polygon(sketch30, [(-5, 74.713581), (-25, 74.713581), (-25, 55.006474), (-5, 55.006474)])
sketch30.addConstraint([
    Sketcher.Constraint("Horizontal", 0),
    Sketcher.Constraint("Vertical", 1),
    Sketcher.Constraint("Horizontal", 2),
    Sketcher.Constraint("Vertical", 3),
    Sketcher.Constraint("DistanceX", 0, 2, 0, 1, 20.0),
    Sketcher.Constraint("DistanceX", 0, 2, -1, 1, 25.0),
    Sketcher.Constraint("DistanceY", 1, 2, 1, 1, 19.707107),
    Sketcher.Constraint("DistanceY", -1, 1, 0, 2, 74.713581),
])
pocket14 = doc.addObject("PartDesign::Pocket", "Pocket013")
body.addObject(pocket14)
pocket14.Profile = sketch30
pocket14.Length = 60

sketch31 = doc.addObject("Sketcher::SketchObject", "Sketch030")
body.addObject(sketch31)
sketch31.AttachmentSupport = (doc.XZ_Plane, [""])
sketch31.MapMode = "FlatFace"
sketch31.AttachmentOffset = App.Placement(V(0, 0, -5), App.Rotation())
add_polygon(sketch31, [(3.59, 42.39), (3.59, 75), (50, 75), (50, 42.39)])
sketch31.addConstraint([
    Sketcher.Constraint("Vertical", 0),
    Sketcher.Constraint("Horizontal", 1),
    Sketcher.Constraint("Vertical", 2),
    Sketcher.Constraint("Horizontal", 3),
    Sketcher.Constraint("DistanceY", -1, 1, 0, 2, 75.0),
    Sketcher.Constraint("DistanceX", -1, 1, 1, 2, 50.0),
    Sketcher.Constraint("DistanceX", 1, 1, 1, 2, 46.41),
    Sketcher.Constraint("DistanceY", 0, 1, 0, 2, 32.61),
])
pocket15 = doc.addObject("PartDesign::Pocket", "Pocket014")
body.addObject(pocket15)
pocket15.Profile = sketch31
pocket15.Length = 60
pocket15.Reversed = True

sketch32 = doc.addObject("Sketcher::SketchObject", "Sketch031")
body.addObject(sketch32)
sketch32.AttachmentSupport = (doc.XZ_Plane, [""])
sketch32.MapMode = "FlatFace"
sketch32.AttachmentOffset = App.Placement(V(0, 0, -5), App.Rotation())
add_polygon(sketch32, [(-82.352743, 45), (-82.352743, 55.006474), (-64.514798, 55.006474), (-64.514798, 45)])
add_polygon(sketch32, [(-50.215916, 40), (-50.215916, 55.006474), (-23.345636, 55.006474), (-23.345636, 74.713581), (-10.521709, 74.713581), (-10.521709, 40)])
sketch32.addConstraint([
    Sketcher.Constraint("Vertical", 0),
    Sketcher.Constraint("Horizontal", 1),
    Sketcher.Constraint("Vertical", 2),
    Sketcher.Constraint("Horizontal", 3),
    Sketcher.Constraint("Vertical", 4),
    Sketcher.Constraint("Horizontal", 5),
    Sketcher.Constraint("Vertical", 6),
    Sketcher.Constraint("Horizontal", 7),
    Sketcher.Constraint("Vertical", 8),
    Sketcher.Constraint("Horizontal", 9),
    Sketcher.Constraint("Horizontal", 1, 2, 4, 2),
    Sketcher.Constraint("DistanceY", -1, 1, 2, 2, 45.0),
    Sketcher.Constraint("DistanceY", -1, 1, 8, 2, 40.0),
    Sketcher.Constraint("DistanceX", 5, 1, 5, 2, 26.87028),
    Sketcher.Constraint("DistanceY", 8, 2, 8, 1, 34.713581),
    Sketcher.Constraint("DistanceX", 1, 2, -1, 1, 64.514798),
    Sketcher.Constraint("DistanceX", 1, 1, 1, 2, 17.837944),
    Sketcher.Constraint("DistanceX", 7, 1, 7, 2, 12.823927),
    Sketcher.Constraint("DistanceY", 0, 1, 0, 2, 10.006474),
    Sketcher.Constraint("DistanceX", 7, 2, -1, 1, 10.521709),
])
pocket16 = doc.addObject("PartDesign::Pocket", "Pocket015")
body.addObject(pocket16)
pocket16.Profile = sketch32
pocket16.Length = 49
pocket16.Reversed = True

sketch33 = doc.addObject("Sketcher::SketchObject", "Sketch032")
body.addObject(sketch33)
sketch33.AttachmentSupport = (doc.XZ_Plane, [""])
sketch33.MapMode = "FlatFace"
sketch33.AttachmentOffset = App.Placement(V(0, 0, 26.59), App.Rotation())
sketch33.addGeometry([
    Part.Circle(V(-58.892598, 54.885337, 0), V(0, 0, 1), 1.6),
    Part.Circle(V(55.658311, 54.885337, 0), V(0, 0, 1), 1.6),
], False)
sketch33.addConstraint([
    Sketcher.Constraint("Equal", 0, 1),
    Sketcher.Constraint("Horizontal", 0, 3, 1, 3),
    Sketcher.Constraint("Diameter", 0, 3.2),
    Sketcher.Constraint("DistanceX", -1, 1, 1, 3, 55.658311),
    Sketcher.Constraint("DistanceX", 0, 3, 1, 3, 114.550908),
    Sketcher.Constraint("DistanceY", -1, 1, 0, 3, 54.885337),
])
pocket17 = doc.addObject("PartDesign::Pocket", "Pocket016")
body.addObject(pocket17)
pocket17.Profile = sketch33
pocket17.Length = 49

doc.recompute()
